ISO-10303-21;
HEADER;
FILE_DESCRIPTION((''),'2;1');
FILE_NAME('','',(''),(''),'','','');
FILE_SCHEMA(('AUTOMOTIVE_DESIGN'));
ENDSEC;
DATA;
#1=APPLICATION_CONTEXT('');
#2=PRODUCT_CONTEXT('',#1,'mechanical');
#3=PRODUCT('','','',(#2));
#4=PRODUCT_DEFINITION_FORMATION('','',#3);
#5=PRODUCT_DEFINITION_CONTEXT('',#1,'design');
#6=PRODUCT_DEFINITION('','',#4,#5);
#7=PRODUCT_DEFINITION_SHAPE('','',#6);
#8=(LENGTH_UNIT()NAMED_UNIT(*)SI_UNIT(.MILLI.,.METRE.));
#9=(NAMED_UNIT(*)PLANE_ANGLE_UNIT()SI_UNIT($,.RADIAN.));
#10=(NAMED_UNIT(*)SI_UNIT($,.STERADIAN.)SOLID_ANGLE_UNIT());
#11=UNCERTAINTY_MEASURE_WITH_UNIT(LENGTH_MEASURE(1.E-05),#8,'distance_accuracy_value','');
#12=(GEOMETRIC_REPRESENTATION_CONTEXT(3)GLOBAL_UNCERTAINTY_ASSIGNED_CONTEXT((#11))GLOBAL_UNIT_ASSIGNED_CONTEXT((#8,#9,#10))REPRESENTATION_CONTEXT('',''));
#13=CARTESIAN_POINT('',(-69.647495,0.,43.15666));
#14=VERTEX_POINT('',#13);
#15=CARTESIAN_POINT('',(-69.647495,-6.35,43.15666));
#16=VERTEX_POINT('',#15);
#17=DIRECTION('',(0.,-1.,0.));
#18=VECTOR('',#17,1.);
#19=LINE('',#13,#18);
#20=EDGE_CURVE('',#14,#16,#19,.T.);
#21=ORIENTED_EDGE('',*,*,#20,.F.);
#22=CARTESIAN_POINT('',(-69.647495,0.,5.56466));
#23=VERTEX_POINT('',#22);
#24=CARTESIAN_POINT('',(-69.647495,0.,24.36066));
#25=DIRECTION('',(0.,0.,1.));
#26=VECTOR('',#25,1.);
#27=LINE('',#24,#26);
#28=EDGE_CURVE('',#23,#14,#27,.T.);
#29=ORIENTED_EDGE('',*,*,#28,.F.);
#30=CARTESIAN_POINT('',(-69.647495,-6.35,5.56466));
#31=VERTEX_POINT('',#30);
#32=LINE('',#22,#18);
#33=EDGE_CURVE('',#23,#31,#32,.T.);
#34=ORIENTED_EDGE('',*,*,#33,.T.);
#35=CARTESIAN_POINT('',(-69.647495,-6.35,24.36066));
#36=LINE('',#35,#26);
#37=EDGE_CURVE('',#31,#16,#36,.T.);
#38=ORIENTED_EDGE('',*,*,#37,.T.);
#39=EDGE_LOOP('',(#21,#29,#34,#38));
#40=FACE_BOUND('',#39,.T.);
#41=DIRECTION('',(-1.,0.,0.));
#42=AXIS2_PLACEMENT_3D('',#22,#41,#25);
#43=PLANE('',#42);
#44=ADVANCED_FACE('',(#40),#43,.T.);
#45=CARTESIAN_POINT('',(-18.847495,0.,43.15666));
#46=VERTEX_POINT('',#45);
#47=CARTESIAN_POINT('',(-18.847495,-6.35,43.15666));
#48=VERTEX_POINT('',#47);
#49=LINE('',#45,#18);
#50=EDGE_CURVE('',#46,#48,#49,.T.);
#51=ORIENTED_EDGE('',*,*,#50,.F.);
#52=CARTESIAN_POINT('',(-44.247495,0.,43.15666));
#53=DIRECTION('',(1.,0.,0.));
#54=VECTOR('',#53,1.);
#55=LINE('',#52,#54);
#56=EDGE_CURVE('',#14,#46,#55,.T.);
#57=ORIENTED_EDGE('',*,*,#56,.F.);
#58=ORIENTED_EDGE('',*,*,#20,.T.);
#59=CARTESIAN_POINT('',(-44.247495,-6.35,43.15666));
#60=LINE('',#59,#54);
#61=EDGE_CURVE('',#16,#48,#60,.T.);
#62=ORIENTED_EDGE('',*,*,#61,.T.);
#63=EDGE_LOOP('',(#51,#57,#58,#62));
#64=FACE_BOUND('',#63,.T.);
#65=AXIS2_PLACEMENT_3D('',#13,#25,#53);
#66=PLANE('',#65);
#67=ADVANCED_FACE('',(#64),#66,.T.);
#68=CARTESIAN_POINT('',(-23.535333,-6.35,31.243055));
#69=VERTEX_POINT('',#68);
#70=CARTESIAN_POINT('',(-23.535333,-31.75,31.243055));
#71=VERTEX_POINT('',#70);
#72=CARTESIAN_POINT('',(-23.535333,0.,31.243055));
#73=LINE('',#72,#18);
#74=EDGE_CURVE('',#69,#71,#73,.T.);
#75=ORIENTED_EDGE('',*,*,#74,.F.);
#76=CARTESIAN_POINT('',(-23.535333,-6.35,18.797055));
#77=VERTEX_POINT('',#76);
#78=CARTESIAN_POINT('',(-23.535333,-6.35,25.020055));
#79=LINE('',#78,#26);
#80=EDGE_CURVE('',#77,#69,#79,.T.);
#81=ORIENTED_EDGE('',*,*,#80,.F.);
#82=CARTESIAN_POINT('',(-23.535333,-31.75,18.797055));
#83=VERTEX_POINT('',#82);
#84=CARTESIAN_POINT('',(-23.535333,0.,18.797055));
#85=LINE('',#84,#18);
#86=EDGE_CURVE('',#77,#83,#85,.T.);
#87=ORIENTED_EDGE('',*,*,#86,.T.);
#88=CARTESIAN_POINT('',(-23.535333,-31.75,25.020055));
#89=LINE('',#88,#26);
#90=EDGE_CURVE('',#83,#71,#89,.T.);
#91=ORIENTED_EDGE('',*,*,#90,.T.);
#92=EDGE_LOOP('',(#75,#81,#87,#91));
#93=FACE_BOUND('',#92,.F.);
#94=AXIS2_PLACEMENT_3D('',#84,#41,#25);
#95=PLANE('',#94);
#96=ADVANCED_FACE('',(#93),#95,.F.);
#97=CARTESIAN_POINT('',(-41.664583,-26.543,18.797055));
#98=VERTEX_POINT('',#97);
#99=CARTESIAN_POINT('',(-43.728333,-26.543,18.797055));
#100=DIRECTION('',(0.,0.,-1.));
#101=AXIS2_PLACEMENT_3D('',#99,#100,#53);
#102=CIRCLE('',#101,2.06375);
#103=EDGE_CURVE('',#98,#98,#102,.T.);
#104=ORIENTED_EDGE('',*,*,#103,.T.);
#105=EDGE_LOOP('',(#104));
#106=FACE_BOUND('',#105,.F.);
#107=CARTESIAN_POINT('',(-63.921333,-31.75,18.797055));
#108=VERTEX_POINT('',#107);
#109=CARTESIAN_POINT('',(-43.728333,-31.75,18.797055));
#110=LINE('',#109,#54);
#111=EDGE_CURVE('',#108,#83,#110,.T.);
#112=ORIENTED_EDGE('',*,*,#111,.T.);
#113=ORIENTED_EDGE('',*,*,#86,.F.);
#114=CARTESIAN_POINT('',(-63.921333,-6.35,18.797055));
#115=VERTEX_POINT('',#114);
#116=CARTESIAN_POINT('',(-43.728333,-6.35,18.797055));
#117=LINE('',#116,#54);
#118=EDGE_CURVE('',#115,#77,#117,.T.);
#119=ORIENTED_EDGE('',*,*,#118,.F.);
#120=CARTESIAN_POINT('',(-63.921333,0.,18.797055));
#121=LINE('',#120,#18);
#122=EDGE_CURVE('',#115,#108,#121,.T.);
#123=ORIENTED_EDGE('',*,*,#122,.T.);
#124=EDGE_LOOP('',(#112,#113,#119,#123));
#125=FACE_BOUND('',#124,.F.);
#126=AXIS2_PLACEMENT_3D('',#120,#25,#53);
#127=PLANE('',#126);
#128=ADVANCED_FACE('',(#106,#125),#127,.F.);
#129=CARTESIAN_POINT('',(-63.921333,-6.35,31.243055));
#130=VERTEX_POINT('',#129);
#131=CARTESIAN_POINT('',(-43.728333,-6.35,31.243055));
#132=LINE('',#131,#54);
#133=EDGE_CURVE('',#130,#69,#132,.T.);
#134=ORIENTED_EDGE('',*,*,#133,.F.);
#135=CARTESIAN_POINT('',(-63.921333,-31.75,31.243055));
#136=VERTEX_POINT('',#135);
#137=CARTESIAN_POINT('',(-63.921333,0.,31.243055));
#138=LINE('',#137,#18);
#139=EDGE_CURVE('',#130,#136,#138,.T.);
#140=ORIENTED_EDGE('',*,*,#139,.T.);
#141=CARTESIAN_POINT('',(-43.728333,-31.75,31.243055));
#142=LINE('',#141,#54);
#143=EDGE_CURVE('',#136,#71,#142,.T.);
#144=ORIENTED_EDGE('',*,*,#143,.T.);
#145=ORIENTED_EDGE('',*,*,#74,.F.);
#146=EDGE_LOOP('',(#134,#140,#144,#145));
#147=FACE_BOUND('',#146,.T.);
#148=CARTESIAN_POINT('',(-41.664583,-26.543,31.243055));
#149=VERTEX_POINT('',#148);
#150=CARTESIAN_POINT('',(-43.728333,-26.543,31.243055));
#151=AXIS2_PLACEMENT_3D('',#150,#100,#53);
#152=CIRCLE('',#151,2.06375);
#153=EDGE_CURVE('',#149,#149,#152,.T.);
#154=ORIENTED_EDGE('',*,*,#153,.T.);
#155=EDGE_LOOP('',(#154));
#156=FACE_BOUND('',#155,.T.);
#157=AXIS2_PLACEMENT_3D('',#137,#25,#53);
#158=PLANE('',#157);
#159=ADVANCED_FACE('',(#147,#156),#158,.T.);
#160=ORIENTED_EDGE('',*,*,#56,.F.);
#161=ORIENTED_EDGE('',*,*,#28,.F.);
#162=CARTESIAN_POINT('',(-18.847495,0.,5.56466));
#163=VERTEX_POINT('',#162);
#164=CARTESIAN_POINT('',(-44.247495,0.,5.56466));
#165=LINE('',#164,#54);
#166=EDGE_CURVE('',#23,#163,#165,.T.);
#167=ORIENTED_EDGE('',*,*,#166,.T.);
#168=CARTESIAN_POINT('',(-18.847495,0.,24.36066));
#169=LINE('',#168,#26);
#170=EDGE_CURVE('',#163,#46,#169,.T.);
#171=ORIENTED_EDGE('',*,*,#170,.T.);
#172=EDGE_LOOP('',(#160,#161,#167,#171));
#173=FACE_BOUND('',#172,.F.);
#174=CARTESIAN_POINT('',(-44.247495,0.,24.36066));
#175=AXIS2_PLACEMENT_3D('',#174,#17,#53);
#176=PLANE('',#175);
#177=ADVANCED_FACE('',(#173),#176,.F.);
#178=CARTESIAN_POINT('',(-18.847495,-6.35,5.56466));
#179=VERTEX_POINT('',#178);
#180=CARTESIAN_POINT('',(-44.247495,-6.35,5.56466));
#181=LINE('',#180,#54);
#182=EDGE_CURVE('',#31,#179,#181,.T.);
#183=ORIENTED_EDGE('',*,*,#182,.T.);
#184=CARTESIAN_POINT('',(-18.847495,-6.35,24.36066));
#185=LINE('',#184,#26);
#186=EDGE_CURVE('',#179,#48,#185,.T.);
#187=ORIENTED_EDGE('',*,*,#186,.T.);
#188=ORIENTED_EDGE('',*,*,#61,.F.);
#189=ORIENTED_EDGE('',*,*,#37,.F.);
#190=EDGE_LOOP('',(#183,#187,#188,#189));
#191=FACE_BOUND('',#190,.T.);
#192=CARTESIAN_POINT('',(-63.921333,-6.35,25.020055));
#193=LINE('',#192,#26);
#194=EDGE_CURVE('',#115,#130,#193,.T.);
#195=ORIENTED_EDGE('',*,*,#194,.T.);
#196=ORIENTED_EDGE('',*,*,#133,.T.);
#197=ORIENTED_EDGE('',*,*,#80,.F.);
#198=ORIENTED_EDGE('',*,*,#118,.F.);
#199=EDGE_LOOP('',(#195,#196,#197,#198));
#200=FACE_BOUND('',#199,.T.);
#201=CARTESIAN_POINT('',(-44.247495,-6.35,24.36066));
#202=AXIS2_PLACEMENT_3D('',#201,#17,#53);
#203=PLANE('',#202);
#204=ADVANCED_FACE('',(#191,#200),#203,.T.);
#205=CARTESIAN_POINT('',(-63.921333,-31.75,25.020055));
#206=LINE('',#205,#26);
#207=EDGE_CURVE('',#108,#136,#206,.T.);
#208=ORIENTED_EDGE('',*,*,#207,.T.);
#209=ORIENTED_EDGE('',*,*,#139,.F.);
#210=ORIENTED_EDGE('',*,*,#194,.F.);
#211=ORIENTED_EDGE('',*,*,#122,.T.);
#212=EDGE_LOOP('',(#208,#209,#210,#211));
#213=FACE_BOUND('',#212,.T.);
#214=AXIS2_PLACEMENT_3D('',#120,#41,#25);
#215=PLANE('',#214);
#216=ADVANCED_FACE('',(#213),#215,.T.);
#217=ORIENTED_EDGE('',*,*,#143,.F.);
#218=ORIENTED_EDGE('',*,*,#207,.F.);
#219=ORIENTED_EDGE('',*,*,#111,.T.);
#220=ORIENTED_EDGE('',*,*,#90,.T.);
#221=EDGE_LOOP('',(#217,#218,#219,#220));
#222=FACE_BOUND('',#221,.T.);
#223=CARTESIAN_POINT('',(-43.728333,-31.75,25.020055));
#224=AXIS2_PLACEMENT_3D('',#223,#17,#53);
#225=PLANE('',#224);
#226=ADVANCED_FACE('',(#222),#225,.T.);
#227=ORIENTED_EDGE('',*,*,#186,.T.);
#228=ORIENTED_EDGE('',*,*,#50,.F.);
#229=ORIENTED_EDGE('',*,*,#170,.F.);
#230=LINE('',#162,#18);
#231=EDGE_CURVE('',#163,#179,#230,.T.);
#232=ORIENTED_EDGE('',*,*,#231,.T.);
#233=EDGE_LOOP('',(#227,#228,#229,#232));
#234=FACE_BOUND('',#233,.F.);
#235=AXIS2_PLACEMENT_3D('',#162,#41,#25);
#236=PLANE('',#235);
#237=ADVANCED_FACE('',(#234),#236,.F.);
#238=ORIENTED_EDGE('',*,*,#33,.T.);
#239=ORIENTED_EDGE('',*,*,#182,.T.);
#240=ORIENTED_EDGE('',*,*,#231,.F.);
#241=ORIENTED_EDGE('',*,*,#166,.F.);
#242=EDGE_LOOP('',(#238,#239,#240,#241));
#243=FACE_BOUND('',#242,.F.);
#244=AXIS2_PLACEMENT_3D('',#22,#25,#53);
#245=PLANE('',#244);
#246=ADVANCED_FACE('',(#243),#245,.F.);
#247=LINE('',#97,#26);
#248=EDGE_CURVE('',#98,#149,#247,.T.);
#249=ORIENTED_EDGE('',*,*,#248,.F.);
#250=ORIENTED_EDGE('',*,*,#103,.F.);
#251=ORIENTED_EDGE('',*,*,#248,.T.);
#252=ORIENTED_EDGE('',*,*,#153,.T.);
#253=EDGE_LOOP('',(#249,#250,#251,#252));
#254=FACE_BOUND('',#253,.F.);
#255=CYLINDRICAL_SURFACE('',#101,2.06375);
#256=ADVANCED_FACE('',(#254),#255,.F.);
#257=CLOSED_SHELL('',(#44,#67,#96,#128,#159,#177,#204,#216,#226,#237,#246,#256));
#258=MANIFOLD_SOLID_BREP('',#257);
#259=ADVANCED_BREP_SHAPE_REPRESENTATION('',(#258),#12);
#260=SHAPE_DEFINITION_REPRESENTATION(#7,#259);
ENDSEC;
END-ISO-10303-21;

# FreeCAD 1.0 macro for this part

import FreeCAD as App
import Part
import Sketcher
Q = App.Units.Quantity


def add_polygon(sketch, points):
    """Adds a closed chain of lines whose ends are joined by coincident constraints."""
    first, n = sketch.GeometryCount, len(points)
    for a, b in zip(points, points[1:] + points[:1]):
        sketch.addGeometry(Part.LineSegment(App.Vector(*a, 0), App.Vector(*b, 0)), False)
    for i in range(n):
        sketch.addConstraint(Sketcher.Constraint("Coincident", first + i, 2, first + (i + 1) % n, 1))

doc = App.newDocument("Part")
body = doc.addObject("PartDesign::Body", "Body")

sketch1 = body.newObject("Sketcher::SketchObject", "Sketch")
sketch1.AttachmentSupport = (doc.getObject("XZ_Plane"), [""])
sketch1.MapMode = "FlatFace"
add_polygon(sketch1, [(-64, 31), (-64, 19), (-24, 19), (-24, 31)])
sketch1.addConstraint([
    Sketcher.Constraint("Vertical", 0),
    Sketcher.Constraint("Horizontal", 1),
    Sketcher.Constraint("Vertical", 2),
    Sketcher.Constraint("Horizontal", 3),
    Sketcher.Constraint("DistanceX", 1, 1, 1, 2, Q("1.59 in")),
    Sketcher.Constraint("DistanceY", 0, 2, 0, 1, Q("0.49 in")),
    Sketcher.Constraint("DistanceX", 0, 2, -1, 1, 63.921333),
    Sketcher.Constraint("DistanceY", -1, 1, 0, 2, 18.797055),
])
pad1 = body.newObject("PartDesign::Pad", "Pad")
pad1.Profile = sketch1
pad1.Length = Q("1.25 in")

sketch2 = body.newObject("Sketcher::SketchObject", "Sketch001")
sketch2.AttachmentSupport = (doc.getObject("XZ_Plane"), [""])
sketch2.MapMode = "FlatFace"
add_polygon(sketch2, [(-70, 43), (-70, 6), (-19, 6), (-19, 43)])
add_polygon(sketch2, [(-24, 19), (-64, 19), (-64, 31), (-24, 31)])
sketch2.addConstraint([
    Sketcher.Constraint("Vertical", 0),
    Sketcher.Constraint("Horizontal", 1),
    Sketcher.Constraint("Vertical", 2),
    Sketcher.Constraint("Horizontal", 3),
    Sketcher.Constraint("Horizontal", 4),
    Sketcher.Constraint("Vertical", 5),
    Sketcher.Constraint("Horizontal", 6),
    Sketcher.Constraint("Vertical", 7),
    Sketcher.Constraint("DistanceX", 1, 1, 1, 2, Q("2 in")),
    Sketcher.Constraint("DistanceX", 4, 2, 4, 1, Q("1.59 in")),
    Sketcher.Constraint("DistanceY", 0, 2, 0, 1, Q("1.48 in")),
    Sketcher.Constraint("DistanceY", 5, 1, 5, 2, Q("0.49 in")),
    Sketcher.Constraint("DistanceY", -1, 1, 0, 2, 5.56466),
    Sketcher.Constraint("DistanceX", 6, 2, 2, 2, 4.687838),
    Sketcher.Constraint("DistanceX", 0, 2, -1, 1, 69.647495),
    Sketcher.Constraint("DistanceY", -1, 1, 4, 2, 18.797055),
])
pad2 = body.newObject("PartDesign::Pad", "Pad001")
pad2.Profile = sketch2
pad2.Length = Q("0.25 in")

sketch3 = body.newObject("Sketcher::SketchObject", "Sketch002")
sketch3.AttachmentSupport = (doc.getObject("XY_Plane"), [""])
sketch3.MapMode = "FlatFace"
sketch3.AttachmentOffset = App.Placement(App.Vector(0, 0, 18.797055), App.Rotation())
sketch3.addGeometry(Part.Circle(App.Vector(-43.7, -26.5, 0), App.Vector(0, 0, 1), 2.1), False)
sketch3.addConstraint([
    Sketcher.Constraint("Diameter", 0, Q("0.1625 in")),
    Sketcher.Constraint("DistanceY", 0, 3, -1, 1, Q("1.045 in")),
    Sketcher.Constraint("DistanceX", 0, 3, -1, 1, 43.728333),
])
pocket1 = body.newObject("PartDesign::Pocket", "Pocket")
pocket1.Profile = sketch3
pocket1.Length = 62.67391
pocket1.Reversed = True

doc.recompute()
